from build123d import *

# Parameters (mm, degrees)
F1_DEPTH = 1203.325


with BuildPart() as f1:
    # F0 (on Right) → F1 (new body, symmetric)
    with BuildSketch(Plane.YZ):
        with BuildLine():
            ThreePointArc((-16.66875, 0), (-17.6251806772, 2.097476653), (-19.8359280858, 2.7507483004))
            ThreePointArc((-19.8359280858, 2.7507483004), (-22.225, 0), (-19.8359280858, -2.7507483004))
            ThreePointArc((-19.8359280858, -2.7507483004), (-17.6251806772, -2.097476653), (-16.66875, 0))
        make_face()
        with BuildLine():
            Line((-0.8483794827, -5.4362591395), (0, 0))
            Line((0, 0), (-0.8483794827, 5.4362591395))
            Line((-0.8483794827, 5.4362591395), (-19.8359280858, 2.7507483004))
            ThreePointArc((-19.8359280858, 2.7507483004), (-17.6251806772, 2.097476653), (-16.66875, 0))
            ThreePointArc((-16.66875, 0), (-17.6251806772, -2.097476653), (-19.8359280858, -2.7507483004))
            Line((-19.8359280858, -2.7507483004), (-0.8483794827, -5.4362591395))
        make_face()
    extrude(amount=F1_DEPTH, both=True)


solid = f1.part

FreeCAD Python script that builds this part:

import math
import FreeCAD as App
import Part
import Sketcher
Q = App.Units.Quantity

doc = App.newDocument("Part")
body = doc.addObject("PartDesign::Body", "Body")

# Sketch on YZ plane
sketch1 = doc.addObject("Sketcher::SketchObject", "Sketch")
body.addObject(sketch1)
sketch1.AttachmentSupport = (doc.YZ_Plane, [""])
sketch1.MapMode = "FlatFace"
sketch1.addGeometry(Part.ArcOfCircle(Part.Circle(App.Vector(-19.446875, 0, 0), App.Vector(0, 0, 1), 2.778125), math.radians(98.050254), math.radians(261.949746)), False)
sketch1.addGeometry(Part.LineSegment(App.Vector(-19.835928, -2.750748, 0), App.Vector(-0.848379, -5.436259, 0)), False)
sketch1.addGeometry(Part.LineSegment(App.Vector(-0.848379, -5.436259, 0), App.Vector(0, 0, 0)), False)
sketch1.addGeometry(Part.LineSegment(App.Vector(0, 0, 0), App.Vector(-0.848379, 5.436259, 0)), False)
sketch1.addGeometry(Part.LineSegment(App.Vector(-0.848379, 5.436259, 0), App.Vector(-19.835928, 2.750748, 0)), False)
sketch1.addConstraint(Sketcher.Constraint("Tangent", 0, 2, 1, 1))
sketch1.addConstraint(Sketcher.Constraint("Coincident", 1, 2, 2, 1))
sketch1.addConstraint(Sketcher.Constraint("Coincident", 2, 2, 3, 1))
sketch1.addConstraint(Sketcher.Constraint("Coincident", 3, 2, 4, 1))
sketch1.addConstraint(Sketcher.Constraint("Tangent", 4, 2, 0, 1))
sketch1.addConstraint(Sketcher.Constraint("Coincident", 2, 2, -1, 1))
sketch1.addConstraint(Sketcher.Constraint("Symmetric", 1, 2, 3, 2, -1))
sketch1.addConstraint(Sketcher.Constraint("PointOnObject", 0, 3, -1))
sketch1.addConstraint(Sketcher.Constraint("Radius", 0, Q("0.109375 in")))
sketch1.addConstraint(Sketcher.Constraint("Angle", 2, Q("81.13 deg")))
sketch1.addConstraint(Sketcher.Constraint("DistanceX", 0, 3, -1, 1, Q("0.765625 in")))
sketch1.addConstraint(Sketcher.Constraint("Distance", 1, 19.176521))
pad1 = doc.addObject("PartDesign::Pad", "Pad")
body.addObject(pad1)
pad1.Profile = sketch1
pad1.Length = Q("94.75 in")
pad1.Midplane = True

doc.recompute()
